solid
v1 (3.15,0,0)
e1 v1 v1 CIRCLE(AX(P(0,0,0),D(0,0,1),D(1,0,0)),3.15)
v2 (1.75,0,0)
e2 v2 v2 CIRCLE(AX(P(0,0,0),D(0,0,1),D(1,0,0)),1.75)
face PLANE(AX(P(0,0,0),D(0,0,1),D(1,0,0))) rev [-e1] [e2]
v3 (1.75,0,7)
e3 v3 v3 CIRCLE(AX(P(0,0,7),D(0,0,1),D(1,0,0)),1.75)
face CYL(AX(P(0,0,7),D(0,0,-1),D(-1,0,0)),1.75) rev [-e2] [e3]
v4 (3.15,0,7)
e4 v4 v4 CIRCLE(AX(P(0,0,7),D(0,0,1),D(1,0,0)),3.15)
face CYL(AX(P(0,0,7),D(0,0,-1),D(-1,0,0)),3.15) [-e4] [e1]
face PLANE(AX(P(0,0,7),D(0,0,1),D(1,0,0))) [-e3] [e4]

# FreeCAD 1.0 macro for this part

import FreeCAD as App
import Part
import Sketcher
from FreeCAD import Vector

doc = App.newDocument("Part")
body = doc.addObject("PartDesign::Body", "Body")

sketch1 = body.newObject("Sketcher::SketchObject", "Sketch")
sketch1.AttachmentSupport = (doc.getObject("XY_Plane"), [""])
sketch1.MapMode = "FlatFace"
sketch1.addGeometry(Part.Circle(Vector(0, 0, 0), Vector(0, 0, 1), 3.1), False)
sketch1.addGeometry(Part.Circle(Vector(0, 0, 0), Vector(0, 0, 1), 1.8), False)
sketch1.addConstraint(Sketcher.Constraint("Coincident", 0, 3, -1, 1))
sketch1.addConstraint(Sketcher.Constraint("Coincident", 1, 3, -1, 1))
sketch1.addConstraint(Sketcher.Constraint("Diameter", 0, 6.3))
sketch1.addConstraint(Sketcher.Constraint("Diameter", 1, 3.5))
pad1 = body.newObject("PartDesign::Pad", "Pad")
pad1.Profile = sketch1
pad1.Length = 7

doc.recompute()
